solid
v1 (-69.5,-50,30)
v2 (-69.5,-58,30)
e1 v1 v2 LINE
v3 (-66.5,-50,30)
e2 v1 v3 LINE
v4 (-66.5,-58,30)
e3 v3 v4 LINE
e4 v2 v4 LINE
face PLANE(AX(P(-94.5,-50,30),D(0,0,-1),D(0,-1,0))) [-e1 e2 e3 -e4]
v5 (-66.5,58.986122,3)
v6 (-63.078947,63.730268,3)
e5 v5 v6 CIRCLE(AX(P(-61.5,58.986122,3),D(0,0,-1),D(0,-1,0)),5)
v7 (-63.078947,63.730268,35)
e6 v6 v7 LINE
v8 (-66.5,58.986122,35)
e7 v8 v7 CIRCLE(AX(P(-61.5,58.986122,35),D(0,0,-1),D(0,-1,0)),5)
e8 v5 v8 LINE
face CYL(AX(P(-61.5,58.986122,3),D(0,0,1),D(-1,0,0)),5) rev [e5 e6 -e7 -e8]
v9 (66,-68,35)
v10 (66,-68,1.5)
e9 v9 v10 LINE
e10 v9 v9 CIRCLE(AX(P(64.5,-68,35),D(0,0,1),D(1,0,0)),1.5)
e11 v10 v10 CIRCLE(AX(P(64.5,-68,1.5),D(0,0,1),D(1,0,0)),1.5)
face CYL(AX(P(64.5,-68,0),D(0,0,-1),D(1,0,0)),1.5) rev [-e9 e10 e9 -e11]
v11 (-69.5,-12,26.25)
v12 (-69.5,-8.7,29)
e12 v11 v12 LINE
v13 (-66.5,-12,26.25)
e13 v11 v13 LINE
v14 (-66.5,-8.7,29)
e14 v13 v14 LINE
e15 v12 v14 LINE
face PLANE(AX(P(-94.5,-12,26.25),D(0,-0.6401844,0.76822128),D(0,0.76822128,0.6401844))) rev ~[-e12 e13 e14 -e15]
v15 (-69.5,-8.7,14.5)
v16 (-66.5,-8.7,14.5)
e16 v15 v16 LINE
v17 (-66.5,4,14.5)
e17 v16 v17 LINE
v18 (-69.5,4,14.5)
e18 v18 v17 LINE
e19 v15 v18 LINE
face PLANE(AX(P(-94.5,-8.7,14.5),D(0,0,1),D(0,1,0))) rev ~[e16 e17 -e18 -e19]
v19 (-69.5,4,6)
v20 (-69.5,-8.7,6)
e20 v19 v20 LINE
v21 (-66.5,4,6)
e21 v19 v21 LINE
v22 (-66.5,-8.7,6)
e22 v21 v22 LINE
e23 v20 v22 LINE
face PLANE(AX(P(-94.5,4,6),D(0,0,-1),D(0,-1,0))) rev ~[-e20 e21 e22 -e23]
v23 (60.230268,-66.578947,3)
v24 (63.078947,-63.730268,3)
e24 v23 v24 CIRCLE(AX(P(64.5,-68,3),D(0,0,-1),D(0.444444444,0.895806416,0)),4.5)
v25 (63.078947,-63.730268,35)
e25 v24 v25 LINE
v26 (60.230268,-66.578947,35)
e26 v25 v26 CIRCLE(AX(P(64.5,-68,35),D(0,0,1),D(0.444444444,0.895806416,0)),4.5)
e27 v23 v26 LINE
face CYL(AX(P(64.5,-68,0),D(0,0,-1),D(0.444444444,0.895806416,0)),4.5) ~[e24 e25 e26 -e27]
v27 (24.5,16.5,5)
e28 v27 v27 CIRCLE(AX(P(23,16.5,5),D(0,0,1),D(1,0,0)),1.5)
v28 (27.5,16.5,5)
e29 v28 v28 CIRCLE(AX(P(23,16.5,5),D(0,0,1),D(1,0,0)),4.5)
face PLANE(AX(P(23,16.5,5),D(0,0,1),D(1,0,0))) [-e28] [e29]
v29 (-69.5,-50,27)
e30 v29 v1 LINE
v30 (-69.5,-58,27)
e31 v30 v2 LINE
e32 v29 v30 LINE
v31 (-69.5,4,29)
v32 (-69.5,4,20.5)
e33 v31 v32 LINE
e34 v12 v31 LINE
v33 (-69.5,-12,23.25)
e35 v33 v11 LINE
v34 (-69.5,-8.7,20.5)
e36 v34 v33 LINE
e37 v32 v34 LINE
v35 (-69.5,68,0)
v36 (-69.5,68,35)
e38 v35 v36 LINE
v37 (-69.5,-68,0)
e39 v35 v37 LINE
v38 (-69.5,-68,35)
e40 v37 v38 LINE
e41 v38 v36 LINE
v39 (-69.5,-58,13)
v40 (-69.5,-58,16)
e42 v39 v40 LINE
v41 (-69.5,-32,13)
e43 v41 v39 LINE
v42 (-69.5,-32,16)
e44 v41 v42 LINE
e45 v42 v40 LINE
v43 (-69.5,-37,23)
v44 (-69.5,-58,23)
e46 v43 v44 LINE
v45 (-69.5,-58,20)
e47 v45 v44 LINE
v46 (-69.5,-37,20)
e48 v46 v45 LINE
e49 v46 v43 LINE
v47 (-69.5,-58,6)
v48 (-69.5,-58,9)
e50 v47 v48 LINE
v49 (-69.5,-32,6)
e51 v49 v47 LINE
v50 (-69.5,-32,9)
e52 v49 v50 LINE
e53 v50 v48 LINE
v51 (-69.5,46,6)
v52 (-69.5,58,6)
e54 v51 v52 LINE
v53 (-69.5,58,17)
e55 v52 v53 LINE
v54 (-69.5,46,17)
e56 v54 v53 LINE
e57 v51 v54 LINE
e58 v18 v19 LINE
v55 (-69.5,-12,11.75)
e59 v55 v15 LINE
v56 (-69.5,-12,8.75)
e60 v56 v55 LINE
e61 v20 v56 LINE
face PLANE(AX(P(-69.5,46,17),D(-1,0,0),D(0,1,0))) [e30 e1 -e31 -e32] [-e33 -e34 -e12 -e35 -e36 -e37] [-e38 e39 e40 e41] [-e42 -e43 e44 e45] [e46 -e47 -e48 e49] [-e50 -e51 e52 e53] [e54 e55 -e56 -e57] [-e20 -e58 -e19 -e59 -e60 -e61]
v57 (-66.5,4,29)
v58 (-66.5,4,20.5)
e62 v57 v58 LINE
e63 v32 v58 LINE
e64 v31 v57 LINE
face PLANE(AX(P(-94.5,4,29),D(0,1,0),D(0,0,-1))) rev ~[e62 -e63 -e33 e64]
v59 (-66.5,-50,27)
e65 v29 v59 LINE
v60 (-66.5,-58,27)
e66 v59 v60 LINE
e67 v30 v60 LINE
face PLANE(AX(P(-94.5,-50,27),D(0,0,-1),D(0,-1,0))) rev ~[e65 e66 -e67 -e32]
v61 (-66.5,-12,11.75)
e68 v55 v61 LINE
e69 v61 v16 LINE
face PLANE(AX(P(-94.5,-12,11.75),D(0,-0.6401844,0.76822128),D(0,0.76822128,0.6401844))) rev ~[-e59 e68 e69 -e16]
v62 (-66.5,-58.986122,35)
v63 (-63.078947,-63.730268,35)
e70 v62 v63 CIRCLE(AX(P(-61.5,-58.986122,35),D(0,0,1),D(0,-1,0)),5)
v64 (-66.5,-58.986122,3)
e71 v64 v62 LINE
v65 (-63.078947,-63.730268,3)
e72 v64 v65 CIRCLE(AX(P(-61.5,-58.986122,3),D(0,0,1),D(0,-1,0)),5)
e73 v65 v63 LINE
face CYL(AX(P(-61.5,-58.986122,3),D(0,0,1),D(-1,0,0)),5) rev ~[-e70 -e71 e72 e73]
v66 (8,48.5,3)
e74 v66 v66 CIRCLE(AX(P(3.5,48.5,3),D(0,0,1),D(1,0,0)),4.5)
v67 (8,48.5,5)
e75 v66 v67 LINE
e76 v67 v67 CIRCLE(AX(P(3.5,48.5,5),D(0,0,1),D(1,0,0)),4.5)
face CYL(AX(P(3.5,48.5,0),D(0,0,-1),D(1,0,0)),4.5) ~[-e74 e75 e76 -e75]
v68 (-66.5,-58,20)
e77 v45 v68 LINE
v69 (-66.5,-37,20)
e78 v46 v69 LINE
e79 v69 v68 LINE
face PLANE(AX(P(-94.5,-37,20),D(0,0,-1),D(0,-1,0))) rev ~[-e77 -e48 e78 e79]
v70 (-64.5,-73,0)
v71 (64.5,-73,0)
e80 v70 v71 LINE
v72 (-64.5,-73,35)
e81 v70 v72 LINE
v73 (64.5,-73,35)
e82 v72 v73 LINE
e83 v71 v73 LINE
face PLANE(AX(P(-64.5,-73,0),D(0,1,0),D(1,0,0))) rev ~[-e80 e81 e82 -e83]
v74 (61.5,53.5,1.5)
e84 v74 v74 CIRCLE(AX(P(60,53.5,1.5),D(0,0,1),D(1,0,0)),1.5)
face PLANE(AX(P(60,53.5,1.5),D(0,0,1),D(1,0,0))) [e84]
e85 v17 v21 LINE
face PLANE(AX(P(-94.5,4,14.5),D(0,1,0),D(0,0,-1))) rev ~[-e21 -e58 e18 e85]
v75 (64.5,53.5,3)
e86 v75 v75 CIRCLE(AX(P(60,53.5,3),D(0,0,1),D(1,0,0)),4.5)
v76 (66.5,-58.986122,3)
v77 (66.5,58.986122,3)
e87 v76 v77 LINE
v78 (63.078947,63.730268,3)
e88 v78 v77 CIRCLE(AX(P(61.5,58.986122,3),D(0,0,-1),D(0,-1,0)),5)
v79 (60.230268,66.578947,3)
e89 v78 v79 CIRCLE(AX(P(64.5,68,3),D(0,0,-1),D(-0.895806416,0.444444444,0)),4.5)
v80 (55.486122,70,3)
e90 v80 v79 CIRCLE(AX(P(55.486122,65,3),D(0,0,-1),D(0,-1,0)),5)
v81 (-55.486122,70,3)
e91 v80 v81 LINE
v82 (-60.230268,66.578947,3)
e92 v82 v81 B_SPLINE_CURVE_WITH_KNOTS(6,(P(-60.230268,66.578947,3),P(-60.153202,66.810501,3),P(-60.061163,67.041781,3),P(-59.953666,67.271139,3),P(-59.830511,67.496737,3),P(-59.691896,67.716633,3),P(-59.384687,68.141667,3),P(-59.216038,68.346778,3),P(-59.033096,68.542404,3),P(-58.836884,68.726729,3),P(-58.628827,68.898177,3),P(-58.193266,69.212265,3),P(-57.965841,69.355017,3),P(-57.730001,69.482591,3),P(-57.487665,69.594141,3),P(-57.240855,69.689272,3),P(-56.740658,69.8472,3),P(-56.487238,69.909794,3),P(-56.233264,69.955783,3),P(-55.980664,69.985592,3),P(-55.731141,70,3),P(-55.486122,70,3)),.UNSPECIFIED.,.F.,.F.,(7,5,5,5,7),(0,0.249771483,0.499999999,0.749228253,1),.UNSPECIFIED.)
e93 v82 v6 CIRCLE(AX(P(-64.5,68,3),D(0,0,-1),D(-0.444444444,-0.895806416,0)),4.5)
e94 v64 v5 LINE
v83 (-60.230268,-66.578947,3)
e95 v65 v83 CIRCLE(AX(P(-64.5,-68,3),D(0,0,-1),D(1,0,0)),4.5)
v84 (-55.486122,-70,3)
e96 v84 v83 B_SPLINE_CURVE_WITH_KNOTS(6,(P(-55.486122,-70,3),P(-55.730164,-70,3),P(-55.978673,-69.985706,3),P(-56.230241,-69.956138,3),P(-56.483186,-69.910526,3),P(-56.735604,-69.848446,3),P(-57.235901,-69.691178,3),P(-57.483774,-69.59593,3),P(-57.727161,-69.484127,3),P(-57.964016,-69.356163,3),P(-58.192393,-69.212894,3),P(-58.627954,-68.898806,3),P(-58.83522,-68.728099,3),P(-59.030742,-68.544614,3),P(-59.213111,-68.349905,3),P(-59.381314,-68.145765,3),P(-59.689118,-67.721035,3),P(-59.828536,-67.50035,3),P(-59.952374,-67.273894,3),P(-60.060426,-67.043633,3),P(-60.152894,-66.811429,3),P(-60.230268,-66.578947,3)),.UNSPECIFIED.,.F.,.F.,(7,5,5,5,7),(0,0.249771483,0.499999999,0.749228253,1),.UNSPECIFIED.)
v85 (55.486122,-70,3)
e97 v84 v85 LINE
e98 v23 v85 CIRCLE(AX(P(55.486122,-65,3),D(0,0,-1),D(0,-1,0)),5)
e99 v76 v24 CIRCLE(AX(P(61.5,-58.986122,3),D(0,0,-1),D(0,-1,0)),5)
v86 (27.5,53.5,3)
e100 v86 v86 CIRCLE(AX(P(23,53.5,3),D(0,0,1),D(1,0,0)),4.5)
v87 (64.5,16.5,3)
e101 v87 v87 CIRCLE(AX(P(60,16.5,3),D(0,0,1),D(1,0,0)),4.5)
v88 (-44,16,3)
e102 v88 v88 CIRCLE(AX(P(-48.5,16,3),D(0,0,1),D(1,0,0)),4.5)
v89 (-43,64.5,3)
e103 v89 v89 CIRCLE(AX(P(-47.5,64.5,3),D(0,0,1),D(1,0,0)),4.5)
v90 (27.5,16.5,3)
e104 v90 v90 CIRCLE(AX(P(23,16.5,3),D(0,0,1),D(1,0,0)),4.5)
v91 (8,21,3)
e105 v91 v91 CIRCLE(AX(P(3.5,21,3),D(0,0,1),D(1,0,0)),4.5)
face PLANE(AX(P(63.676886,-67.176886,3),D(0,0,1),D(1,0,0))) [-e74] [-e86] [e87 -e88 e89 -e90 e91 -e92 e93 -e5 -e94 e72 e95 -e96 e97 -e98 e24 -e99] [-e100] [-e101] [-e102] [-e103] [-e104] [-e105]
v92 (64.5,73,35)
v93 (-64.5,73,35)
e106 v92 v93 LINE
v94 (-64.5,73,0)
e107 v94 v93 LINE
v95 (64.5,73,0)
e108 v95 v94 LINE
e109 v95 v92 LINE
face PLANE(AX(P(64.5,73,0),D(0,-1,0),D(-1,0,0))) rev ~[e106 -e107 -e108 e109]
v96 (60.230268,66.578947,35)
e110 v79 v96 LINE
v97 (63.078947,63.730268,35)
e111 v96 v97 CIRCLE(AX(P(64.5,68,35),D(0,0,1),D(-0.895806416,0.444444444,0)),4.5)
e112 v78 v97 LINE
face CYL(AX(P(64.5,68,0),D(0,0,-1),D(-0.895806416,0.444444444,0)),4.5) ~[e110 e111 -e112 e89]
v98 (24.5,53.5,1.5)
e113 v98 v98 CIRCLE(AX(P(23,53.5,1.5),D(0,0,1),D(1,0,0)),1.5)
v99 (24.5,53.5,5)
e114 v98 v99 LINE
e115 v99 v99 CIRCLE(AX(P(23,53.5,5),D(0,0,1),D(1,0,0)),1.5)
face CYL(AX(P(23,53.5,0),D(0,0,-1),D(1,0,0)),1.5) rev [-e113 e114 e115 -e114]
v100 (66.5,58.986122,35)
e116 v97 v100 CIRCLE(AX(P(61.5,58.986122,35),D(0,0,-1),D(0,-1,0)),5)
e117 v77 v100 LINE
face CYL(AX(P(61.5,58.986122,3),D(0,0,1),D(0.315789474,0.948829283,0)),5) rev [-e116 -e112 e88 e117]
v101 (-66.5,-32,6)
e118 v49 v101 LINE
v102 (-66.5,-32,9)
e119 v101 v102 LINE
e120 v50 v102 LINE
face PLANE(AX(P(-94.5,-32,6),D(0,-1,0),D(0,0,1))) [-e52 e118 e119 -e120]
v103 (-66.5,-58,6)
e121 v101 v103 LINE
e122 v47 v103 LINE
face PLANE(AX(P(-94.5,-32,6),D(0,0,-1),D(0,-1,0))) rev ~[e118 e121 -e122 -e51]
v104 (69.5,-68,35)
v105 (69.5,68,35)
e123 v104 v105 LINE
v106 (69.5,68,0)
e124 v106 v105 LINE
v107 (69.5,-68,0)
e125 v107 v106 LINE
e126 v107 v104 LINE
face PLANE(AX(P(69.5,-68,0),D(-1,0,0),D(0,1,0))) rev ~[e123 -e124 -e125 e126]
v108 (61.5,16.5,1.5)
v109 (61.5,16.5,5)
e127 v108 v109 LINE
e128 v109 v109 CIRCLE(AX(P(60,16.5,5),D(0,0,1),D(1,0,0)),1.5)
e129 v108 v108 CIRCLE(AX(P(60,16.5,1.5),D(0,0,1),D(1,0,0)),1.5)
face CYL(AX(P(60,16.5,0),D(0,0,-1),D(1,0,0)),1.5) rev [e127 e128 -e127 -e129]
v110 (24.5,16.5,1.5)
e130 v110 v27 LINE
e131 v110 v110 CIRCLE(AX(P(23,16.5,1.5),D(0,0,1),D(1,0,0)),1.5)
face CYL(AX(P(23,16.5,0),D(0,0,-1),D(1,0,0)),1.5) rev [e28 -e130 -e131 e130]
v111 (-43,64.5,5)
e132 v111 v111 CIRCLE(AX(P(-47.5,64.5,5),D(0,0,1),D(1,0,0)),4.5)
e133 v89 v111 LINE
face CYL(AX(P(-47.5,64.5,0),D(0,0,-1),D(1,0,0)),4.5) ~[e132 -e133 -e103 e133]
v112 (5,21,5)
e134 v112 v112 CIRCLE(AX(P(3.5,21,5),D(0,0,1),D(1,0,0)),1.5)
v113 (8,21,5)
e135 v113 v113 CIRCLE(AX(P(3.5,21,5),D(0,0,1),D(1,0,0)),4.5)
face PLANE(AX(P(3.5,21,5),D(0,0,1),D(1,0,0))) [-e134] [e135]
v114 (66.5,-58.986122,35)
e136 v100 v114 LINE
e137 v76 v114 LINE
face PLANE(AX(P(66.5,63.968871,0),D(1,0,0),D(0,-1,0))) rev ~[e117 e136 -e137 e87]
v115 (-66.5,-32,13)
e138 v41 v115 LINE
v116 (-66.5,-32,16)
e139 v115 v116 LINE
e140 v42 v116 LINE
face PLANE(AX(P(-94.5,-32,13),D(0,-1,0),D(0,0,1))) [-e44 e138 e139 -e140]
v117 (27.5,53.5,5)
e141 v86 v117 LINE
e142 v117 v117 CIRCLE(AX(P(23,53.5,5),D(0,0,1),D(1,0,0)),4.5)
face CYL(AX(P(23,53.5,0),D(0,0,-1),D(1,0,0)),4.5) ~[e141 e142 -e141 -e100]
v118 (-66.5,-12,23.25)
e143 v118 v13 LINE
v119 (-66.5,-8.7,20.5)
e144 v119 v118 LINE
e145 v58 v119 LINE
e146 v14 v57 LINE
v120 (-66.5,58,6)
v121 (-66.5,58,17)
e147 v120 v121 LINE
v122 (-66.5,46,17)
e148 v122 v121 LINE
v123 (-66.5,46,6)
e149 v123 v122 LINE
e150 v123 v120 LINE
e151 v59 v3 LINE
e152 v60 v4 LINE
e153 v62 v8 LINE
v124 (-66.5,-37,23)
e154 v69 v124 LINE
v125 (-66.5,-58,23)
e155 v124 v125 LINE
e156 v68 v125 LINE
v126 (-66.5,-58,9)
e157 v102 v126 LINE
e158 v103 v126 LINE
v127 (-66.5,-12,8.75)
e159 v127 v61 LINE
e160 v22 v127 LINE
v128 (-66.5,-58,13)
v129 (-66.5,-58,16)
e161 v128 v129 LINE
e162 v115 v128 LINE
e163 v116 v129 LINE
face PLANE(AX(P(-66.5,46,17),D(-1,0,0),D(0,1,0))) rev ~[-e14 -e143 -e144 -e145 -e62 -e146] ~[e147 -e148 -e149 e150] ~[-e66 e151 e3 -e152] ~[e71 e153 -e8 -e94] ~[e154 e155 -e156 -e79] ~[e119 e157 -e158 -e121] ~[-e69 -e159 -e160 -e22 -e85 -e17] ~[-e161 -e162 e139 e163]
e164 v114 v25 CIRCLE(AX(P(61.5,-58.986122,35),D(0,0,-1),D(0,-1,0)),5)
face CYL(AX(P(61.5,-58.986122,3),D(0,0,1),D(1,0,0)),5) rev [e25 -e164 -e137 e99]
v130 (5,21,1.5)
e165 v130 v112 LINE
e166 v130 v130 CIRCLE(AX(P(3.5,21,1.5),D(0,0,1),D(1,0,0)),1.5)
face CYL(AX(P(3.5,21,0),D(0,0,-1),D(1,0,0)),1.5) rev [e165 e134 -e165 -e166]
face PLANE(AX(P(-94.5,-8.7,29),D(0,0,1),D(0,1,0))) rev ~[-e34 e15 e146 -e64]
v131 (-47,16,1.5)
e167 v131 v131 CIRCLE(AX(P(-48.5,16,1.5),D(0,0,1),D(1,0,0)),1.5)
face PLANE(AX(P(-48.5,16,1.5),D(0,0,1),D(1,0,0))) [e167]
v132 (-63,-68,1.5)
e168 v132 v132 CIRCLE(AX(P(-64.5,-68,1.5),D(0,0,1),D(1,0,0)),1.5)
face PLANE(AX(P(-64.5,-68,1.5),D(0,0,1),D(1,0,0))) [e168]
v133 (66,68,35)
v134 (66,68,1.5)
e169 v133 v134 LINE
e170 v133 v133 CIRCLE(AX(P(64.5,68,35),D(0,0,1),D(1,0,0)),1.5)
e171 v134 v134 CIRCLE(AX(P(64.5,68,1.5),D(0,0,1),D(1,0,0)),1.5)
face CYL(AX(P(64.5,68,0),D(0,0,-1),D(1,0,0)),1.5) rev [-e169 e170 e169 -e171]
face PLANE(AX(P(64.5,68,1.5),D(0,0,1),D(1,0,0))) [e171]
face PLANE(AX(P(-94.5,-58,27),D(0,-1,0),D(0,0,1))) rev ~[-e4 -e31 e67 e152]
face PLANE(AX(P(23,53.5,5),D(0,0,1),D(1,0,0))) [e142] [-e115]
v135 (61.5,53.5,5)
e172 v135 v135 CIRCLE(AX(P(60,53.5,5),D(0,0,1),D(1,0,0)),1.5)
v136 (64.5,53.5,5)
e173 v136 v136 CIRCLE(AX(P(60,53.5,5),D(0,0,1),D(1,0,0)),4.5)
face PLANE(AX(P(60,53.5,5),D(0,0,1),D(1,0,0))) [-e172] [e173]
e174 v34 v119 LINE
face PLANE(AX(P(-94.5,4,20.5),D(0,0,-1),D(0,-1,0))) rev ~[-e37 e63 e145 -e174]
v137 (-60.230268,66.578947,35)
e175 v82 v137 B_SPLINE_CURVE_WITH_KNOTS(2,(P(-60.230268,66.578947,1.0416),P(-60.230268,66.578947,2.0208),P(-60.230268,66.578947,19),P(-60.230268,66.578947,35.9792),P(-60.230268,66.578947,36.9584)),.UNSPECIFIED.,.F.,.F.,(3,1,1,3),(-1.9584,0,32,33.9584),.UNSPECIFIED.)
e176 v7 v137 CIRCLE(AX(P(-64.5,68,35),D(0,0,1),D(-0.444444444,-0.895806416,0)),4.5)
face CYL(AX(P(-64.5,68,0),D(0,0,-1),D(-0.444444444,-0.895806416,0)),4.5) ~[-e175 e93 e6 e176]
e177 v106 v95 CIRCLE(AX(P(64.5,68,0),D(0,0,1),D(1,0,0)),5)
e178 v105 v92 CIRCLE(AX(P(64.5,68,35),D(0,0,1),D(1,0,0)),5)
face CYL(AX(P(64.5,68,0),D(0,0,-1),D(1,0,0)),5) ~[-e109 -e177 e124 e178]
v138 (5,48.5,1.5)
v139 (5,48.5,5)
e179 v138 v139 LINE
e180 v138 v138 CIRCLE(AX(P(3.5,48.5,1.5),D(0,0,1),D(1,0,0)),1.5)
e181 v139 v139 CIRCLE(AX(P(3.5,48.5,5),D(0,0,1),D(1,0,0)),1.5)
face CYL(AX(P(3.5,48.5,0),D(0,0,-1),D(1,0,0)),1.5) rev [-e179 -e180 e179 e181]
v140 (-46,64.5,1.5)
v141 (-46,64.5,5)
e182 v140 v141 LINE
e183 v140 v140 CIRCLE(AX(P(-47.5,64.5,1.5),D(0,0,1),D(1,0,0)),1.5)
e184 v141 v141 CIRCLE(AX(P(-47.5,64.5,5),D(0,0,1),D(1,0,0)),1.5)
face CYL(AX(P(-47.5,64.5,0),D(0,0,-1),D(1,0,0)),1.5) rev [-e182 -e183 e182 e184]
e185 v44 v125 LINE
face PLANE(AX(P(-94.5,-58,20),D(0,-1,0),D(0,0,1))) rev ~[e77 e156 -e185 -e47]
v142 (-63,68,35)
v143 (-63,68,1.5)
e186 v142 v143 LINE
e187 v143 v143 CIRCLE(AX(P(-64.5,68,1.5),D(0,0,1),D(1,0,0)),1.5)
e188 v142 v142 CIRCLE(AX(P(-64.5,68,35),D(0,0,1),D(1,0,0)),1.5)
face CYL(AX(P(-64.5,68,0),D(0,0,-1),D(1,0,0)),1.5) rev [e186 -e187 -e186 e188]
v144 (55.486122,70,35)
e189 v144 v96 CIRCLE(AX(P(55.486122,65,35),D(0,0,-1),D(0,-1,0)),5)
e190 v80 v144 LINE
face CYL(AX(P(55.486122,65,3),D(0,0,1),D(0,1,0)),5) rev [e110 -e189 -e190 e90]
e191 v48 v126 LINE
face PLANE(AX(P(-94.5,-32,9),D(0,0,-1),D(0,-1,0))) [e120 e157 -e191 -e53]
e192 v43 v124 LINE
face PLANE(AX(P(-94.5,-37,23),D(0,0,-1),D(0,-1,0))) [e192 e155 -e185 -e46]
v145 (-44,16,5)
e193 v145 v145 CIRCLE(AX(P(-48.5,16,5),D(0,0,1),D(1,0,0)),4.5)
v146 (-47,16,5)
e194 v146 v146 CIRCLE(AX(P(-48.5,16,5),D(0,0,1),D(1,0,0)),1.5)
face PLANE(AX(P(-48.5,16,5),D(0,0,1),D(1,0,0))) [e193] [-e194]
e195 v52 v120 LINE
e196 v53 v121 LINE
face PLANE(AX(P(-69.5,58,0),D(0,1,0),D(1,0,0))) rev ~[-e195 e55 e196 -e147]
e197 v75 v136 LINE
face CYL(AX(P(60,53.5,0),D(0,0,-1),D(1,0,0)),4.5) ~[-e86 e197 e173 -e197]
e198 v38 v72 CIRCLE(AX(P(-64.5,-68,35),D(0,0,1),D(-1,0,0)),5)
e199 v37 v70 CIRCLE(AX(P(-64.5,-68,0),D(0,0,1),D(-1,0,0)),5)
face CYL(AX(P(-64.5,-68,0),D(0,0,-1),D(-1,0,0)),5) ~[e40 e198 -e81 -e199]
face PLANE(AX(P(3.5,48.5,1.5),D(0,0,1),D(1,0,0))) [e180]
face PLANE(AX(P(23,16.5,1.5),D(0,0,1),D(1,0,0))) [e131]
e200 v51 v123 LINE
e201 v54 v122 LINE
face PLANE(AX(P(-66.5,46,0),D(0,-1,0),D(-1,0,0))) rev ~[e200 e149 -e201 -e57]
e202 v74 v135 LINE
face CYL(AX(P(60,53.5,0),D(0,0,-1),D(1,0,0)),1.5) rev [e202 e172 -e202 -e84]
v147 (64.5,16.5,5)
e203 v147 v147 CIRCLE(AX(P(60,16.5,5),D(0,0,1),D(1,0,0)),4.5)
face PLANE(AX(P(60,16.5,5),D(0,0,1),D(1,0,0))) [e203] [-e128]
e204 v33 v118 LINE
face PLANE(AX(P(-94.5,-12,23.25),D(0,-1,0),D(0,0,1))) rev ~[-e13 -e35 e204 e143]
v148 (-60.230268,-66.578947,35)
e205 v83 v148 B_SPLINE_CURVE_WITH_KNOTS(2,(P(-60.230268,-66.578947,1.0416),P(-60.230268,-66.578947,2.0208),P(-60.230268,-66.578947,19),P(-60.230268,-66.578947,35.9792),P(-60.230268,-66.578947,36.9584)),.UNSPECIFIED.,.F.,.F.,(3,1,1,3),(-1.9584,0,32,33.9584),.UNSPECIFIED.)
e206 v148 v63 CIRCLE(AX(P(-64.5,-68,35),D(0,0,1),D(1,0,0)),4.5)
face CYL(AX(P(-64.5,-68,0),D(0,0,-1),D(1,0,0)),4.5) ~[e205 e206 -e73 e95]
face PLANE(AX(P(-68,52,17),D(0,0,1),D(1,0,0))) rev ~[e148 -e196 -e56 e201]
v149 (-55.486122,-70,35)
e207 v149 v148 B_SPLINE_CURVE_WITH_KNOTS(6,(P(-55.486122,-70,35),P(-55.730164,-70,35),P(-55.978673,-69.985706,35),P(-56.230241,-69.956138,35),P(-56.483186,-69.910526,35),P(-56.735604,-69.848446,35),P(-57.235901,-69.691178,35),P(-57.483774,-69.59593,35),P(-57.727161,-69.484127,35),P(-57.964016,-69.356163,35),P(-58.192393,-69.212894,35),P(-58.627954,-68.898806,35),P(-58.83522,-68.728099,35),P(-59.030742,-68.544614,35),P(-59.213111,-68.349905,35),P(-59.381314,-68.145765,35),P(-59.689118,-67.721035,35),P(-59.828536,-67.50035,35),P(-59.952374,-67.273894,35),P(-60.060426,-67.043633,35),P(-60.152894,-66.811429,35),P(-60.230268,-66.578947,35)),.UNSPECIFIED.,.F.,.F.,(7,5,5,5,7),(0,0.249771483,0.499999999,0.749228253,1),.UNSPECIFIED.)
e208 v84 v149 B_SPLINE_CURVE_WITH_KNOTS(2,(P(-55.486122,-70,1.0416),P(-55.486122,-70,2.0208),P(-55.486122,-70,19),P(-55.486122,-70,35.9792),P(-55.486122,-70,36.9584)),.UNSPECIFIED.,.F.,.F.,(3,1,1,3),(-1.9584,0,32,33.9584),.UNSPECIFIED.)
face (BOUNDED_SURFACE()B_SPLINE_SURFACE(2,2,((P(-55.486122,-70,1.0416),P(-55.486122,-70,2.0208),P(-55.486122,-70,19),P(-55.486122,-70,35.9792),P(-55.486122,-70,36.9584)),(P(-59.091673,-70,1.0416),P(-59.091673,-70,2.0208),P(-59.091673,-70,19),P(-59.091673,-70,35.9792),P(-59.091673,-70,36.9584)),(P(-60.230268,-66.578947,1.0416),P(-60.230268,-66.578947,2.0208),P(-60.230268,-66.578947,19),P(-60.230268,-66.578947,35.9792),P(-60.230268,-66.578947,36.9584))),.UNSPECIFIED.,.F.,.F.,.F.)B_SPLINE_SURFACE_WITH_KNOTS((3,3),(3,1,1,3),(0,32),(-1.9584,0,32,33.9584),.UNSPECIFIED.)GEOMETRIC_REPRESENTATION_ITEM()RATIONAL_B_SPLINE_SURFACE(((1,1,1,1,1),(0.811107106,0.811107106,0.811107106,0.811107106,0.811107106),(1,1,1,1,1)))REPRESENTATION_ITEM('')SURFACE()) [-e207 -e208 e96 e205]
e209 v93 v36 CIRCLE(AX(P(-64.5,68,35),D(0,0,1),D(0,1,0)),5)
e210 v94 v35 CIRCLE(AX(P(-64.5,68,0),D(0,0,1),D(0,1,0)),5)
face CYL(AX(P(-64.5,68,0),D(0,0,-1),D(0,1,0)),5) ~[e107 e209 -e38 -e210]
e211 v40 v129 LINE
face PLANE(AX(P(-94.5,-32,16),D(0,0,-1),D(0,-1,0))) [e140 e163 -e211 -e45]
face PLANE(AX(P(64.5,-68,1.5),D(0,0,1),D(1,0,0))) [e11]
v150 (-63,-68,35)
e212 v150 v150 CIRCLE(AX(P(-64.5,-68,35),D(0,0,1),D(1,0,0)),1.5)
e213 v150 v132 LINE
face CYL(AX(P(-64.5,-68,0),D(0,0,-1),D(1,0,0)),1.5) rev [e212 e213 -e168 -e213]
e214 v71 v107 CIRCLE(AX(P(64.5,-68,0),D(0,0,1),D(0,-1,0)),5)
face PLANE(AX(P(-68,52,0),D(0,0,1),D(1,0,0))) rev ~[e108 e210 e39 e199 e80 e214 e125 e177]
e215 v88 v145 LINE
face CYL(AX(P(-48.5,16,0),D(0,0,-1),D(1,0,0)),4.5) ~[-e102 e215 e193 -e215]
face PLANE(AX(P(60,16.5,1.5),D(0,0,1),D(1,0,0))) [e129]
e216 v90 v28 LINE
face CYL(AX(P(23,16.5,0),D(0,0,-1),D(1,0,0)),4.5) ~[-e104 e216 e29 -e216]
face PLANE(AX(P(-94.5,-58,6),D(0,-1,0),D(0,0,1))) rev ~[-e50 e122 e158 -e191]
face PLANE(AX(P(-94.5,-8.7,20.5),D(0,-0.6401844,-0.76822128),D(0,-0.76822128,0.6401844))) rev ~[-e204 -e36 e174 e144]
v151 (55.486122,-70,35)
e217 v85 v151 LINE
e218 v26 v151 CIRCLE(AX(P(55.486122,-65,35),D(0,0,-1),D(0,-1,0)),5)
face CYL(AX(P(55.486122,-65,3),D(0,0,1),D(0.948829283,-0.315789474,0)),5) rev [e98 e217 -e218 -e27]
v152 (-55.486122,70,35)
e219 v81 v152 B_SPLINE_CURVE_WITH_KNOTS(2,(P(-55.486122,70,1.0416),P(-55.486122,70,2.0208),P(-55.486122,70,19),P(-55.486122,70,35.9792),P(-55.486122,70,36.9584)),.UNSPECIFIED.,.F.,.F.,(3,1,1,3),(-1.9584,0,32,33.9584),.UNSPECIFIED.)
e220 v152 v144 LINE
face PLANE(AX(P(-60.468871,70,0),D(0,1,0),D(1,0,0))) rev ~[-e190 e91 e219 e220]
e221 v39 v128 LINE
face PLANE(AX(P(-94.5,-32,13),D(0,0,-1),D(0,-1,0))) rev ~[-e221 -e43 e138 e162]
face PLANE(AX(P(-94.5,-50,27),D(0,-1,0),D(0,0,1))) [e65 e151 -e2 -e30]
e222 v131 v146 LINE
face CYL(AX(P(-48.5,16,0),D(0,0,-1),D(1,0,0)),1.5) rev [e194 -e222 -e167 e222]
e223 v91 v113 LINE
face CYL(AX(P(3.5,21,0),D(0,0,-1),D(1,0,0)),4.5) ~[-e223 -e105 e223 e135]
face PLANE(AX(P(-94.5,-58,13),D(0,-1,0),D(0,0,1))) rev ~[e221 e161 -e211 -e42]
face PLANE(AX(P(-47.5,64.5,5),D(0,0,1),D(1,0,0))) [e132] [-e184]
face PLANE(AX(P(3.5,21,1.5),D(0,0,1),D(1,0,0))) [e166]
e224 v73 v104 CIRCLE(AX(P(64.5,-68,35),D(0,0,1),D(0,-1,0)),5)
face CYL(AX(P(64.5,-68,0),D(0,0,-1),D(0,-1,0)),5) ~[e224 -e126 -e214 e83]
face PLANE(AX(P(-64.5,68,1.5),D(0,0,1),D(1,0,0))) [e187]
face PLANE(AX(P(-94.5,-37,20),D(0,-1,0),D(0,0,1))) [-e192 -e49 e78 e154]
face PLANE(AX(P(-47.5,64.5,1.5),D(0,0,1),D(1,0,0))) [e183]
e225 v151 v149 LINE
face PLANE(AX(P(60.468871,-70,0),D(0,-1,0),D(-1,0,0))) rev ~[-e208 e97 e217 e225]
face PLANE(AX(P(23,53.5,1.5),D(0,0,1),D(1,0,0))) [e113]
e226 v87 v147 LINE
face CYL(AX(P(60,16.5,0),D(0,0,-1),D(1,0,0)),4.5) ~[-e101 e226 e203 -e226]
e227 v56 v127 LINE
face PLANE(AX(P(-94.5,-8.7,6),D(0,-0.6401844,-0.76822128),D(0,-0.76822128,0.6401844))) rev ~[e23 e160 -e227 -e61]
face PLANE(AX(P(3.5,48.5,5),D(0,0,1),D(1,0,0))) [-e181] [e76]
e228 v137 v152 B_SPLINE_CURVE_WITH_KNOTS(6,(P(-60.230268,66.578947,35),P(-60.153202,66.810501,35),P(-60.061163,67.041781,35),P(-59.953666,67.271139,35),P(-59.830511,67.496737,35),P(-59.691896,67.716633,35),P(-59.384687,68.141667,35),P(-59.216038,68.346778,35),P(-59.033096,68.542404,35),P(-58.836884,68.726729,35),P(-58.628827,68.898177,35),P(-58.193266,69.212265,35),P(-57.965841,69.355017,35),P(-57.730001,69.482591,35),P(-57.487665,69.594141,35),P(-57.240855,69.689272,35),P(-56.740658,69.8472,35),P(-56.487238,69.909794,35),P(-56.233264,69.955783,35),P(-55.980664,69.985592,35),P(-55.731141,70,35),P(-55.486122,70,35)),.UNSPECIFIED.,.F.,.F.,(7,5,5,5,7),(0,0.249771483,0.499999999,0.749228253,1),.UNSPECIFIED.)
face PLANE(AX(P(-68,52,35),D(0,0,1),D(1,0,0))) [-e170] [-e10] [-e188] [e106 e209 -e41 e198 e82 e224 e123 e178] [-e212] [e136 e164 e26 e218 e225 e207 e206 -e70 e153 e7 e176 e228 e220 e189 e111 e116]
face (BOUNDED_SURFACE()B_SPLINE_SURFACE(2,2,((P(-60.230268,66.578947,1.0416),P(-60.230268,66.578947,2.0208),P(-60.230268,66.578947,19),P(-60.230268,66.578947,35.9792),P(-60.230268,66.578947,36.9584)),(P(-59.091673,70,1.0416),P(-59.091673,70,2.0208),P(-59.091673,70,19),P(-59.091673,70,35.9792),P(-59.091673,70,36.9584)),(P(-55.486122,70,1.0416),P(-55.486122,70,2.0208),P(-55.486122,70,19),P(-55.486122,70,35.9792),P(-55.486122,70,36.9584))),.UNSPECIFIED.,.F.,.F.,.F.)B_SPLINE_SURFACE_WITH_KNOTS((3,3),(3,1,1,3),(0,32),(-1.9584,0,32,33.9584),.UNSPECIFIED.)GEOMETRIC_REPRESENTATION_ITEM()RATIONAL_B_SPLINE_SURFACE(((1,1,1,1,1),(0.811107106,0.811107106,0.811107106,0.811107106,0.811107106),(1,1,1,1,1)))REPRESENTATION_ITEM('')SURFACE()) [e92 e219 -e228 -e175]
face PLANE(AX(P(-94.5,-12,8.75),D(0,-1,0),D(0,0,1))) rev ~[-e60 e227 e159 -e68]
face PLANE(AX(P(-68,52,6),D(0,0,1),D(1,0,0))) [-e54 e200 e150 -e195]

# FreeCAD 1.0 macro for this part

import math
import FreeCAD as App
import Part
import Sketcher

V = App.Vector


def edges_at(feature, points):
    """Names of the edges that pass closest to the given points."""
    edges = feature.Shape.Edges
    near = lambda p: min(range(len(edges)), key=lambda i: edges[i].distToShape(Part.Vertex(*p))[0])
    return sorted({f"Edge{near(p) + 1}" for p in points})


def add_polygon(sketch, points):
    """Adds a closed chain of lines whose ends are joined by coincident constraints."""
    first, n = sketch.GeometryCount, len(points)
    for a, b in zip(points, points[1:] + points[:1]):
        sketch.addGeometry(Part.LineSegment(App.Vector(*a, 0), App.Vector(*b, 0)), False)
    for i in range(n):
        sketch.addConstraint(Sketcher.Constraint("Coincident", first + i, 2, first + (i + 1) % n, 1))

doc = App.newDocument("Part")
body = doc.addObject("PartDesign::Body", "Body")

# Sketch on XY plane
sketch1 = body.newObject("Sketcher::SketchObject", "Sketch")
sketch1.AttachmentSupport = (doc.getObject("XY_Plane"), [""])
sketch1.MapMode = "FlatFace"
add_polygon(sketch1, [(66.5, -70), (66.5, 70), (-66.5, 70), (-66.5, -70)])  # lines 0-3
sketch1.addGeometry(Part.Circle(V(-64.5, -68, 0), V(0, 0, 1), 1.5), False)  # 4
sketch1.addGeometry(Part.Circle(V(64.5, -68, 0), V(0, 0, 1), 1.5), False)  # 5
sketch1.addGeometry(Part.Circle(V(-48.5, 16, 0), V(0, 0, 1), 4.5), False)  # 6
sketch1.addGeometry(Part.Circle(V(-64.5, 68, 0), V(0, 0, 1), 1.5), False)  # 7
sketch1.addGeometry(Part.Circle(V(-47.5, 64.5, 0), V(0, 0, 1), 4.5), False)  # 8
sketch1.addGeometry(Part.Circle(V(23, 16.5, 0), V(0, 0, 1), 4.5), False)  # 9
sketch1.addGeometry(Part.Circle(V(3.5, 21, 0), V(0, 0, 1), 4.5), False)  # 10
sketch1.addGeometry(Part.Circle(V(60, 16.5, 0), V(0, 0, 1), 4.5), False)  # 11
sketch1.addGeometry(Part.Circle(V(3.5, 48.5, 0), V(0, 0, 1), 4.5), False)  # 12
sketch1.addGeometry(Part.Circle(V(23, 53.5, 0), V(0, 0, 1), 4.5), False)  # 13
sketch1.addGeometry(Part.Circle(V(60, 53.5, 0), V(0, 0, 1), 4.5), False)  # 14
sketch1.addGeometry(Part.Circle(V(64.5, 68, 0), V(0, 0, 1), 1.5), False)  # 15
sketch1.addConstraint([
    Sketcher.Constraint("Vertical", 0),
    Sketcher.Constraint("Horizontal", 1),
    Sketcher.Constraint("Vertical", 2),
    Sketcher.Constraint("Horizontal", 3),
    Sketcher.Constraint("Equal", 4, 5),
    Sketcher.Constraint("Equal", 5, 7),
    Sketcher.Constraint("Equal", 6, 8),
    Sketcher.Constraint("Equal", 8, 9),
    Sketcher.Constraint("Equal", 9, 10),
    Sketcher.Constraint("Equal", 10, 11),
    Sketcher.Constraint("Equal", 11, 12),
    Sketcher.Constraint("Equal", 12, 13),
    Sketcher.Constraint("Equal", 13, 14),
    Sketcher.Constraint("Equal", 7, 15),
    Sketcher.Constraint("Symmetric", 5, 3, 7, 3, -1, 1),
    Sketcher.Constraint("Symmetric", 4, 3, 15, 3, -1, 1),
    Sketcher.Constraint("Symmetric", 0, 2, 2, 2, -1, 1),
    Sketcher.Constraint("Symmetric", 4, 3, 5, 3, -2),
    Sketcher.Constraint("Horizontal", 9, 3, 11, 3),
    Sketcher.Constraint("Horizontal", 13, 3, 14, 3),
    Sketcher.Constraint("Vertical", 10, 3, 12, 3),
    Sketcher.Constraint("Vertical", 9, 3, 13, 3),
    Sketcher.Constraint("Vertical", 11, 3, 14, 3),
    Sketcher.Constraint("Diameter", 4, 3.0),
    Sketcher.Constraint("Diameter", 6, 9.0),
    Sketcher.Constraint("DistanceX", 1, 2, 1, 1, 133.0),
    Sketcher.Constraint("DistanceY", 0, 1, 0, 2, 140.0),
    Sketcher.Constraint("DistanceY", 4, 3, -1, 1, 68.0),
    Sketcher.Constraint("DistanceY", -1, 1, 6, 3, 16.0),
    Sketcher.Constraint("DistanceX", -1, 1, 9, 3, 23.0),
    Sketcher.Constraint("DistanceY", -1, 1, 10, 3, 21.0),
    Sketcher.Constraint("DistanceX", -1, 1, 11, 3, 60.0),
    Sketcher.Constraint("DistanceX", 4, 3, 5, 3, 129.0),
    Sketcher.Constraint("DistanceX", 4, 3, 6, 3, 16.0),
    Sketcher.Constraint("DistanceX", 7, 3, 8, 3, 17.0),
    Sketcher.Constraint("DistanceY", 9, 3, 8, 3, 48.0),
    Sketcher.Constraint("DistanceX", 6, 3, 10, 3, 52.0),
    Sketcher.Constraint("DistanceY", 9, 3, 12, 3, 32.0),
    Sketcher.Constraint("DistanceY", 12, 3, 13, 3, 5.0),
    Sketcher.Constraint("DistanceY", -1, 1, 8, 3, 64.5),
])
pad1 = body.newObject("PartDesign::Pad", "Pad")
pad1.Profile = sketch1
pad1.Length = 3

# Sketch on XY plane
sketch2 = body.newObject("Sketcher::SketchObject", "Sketch001")
sketch2.AttachmentSupport = (doc.getObject("XY_Plane"), [""])
sketch2.MapMode = "FlatFace"
sketch2.addGeometry([
    Part.Circle(V(-47.5, 64.5, 0), V(0, 0, 1), 4.5),  # 0
    Part.Circle(V(-47.5, 64.5, 0), V(0, 0, 1), 1.5),  # 1
    Part.Circle(V(-48.5, 16, 0), V(0, 0, 1), 4.5),  # 2
    Part.Circle(V(-48.5, 16, 0), V(0, 0, 1), 1.5),  # 3
    Part.Circle(V(3.5, 48.5, 0), V(0, 0, 1), 4.5),  # 4
    Part.Circle(V(3.5, 48.5, 0), V(0, 0, 1), 1.5),  # 5
    Part.Circle(V(23, 53.5, 0), V(0, 0, 1), 4.5),  # 6
    Part.Circle(V(23, 53.5, 0), V(0, 0, 1), 1.5),  # 7
    Part.Circle(V(23, 16.5, 0), V(0, 0, 1), 4.5),  # 8
    Part.Circle(V(23, 16.5, 0), V(0, 0, 1), 1.5),  # 9
    Part.Circle(V(60, 53.5, 0), V(0, 0, 1), 4.5),  # 10
    Part.Circle(V(60, 53.5, 0), V(0, 0, 1), 1.5),  # 11
    Part.Circle(V(60, 16.5, 0), V(0, 0, 1), 4.5),  # 12
    Part.Circle(V(60, 16.5, 0), V(0, 0, 1), 1.5),  # 13
    Part.Circle(V(3.5, 21, 0), V(0, 0, 1), 4.5),  # 14
    Part.Circle(V(3.5, 21, 0), V(0, 0, 1), 1.5),  # 15
], False)
sketch2.addConstraint([
    Sketcher.Constraint("Coincident", 1, 3, 0, 3),
    Sketcher.Constraint("Coincident", 3, 3, 2, 3),
    Sketcher.Constraint("Coincident", 5, 3, 4, 3),
    Sketcher.Constraint("Coincident", 7, 3, 6, 3),
    Sketcher.Constraint("Coincident", 9, 3, 8, 3),
    Sketcher.Constraint("Coincident", 11, 3, 10, 3),
    Sketcher.Constraint("Coincident", 13, 3, 12, 3),
    Sketcher.Constraint("Coincident", 15, 3, 14, 3),
    Sketcher.Constraint("Equal", 0, 2),
    Sketcher.Constraint("Equal", 1, 3),
    Sketcher.Constraint("Equal", 2, 4),
    Sketcher.Constraint("Equal", 3, 5),
    Sketcher.Constraint("Equal", 4, 6),
    Sketcher.Constraint("Equal", 5, 7),
    Sketcher.Constraint("Equal", 6, 8),
    Sketcher.Constraint("Equal", 7, 9),
    Sketcher.Constraint("Equal", 8, 10),
    Sketcher.Constraint("Equal", 9, 11),
    Sketcher.Constraint("Equal", 10, 12),
    Sketcher.Constraint("Equal", 11, 13),
    Sketcher.Constraint("Equal", 12, 14),
    Sketcher.Constraint("Equal", 13, 15),
    Sketcher.Constraint("Horizontal", 7, 3, 10, 3),
    Sketcher.Constraint("Horizontal", 9, 3, 12, 3),
    Sketcher.Constraint("Vertical", 7, 3, 8, 3),
    Sketcher.Constraint("Vertical", 11, 3, 12, 3),
    Sketcher.Constraint("Vertical", 5, 3, 14, 3),
    Sketcher.Constraint("Diameter", 0, 9.0),
    Sketcher.Constraint("Diameter", 1, 3.0),
    Sketcher.Constraint("DistanceY", -1, 1, 2, 3, 16.0),
    Sketcher.Constraint("DistanceX", -1, 1, 6, 3, 23.0),
    Sketcher.Constraint("DistanceX", -1, 1, 10, 3, 60.0),
    Sketcher.Constraint("DistanceY", -1, 1, 14, 3, 21.0),
    Sketcher.Constraint("DistanceX", 2, 3, 0, 3, 1.0),
    Sketcher.Constraint("DistanceX", 0, 3, 4, 3, 51.0),
    Sketcher.Constraint("DistanceY", 4, 3, 0, 3, 16.0),
    Sketcher.Constraint("DistanceY", 4, 3, 6, 3, 5.0),
    Sketcher.Constraint("DistanceY", 8, 3, 6, 3, 37.0),
    Sketcher.Constraint("DistanceX", 0, 3, -1, 1, 47.5),
    Sketcher.Constraint("DistanceY", -1, 1, 0, 3, 64.5),
])
pad2 = body.newObject("PartDesign::Pad", "Pad001")
pad2.Profile = sketch2
pad2.Length = 5

# Sketch on XY plane
sketch3 = body.newObject("Sketcher::SketchObject", "Sketch002")
sketch3.AttachmentSupport = (doc.getObject("XY_Plane"), [""])
sketch3.MapMode = "FlatFace"
sketch3.addGeometry([
    Part.Circle(V(-47.5, 64.5, 0), V(0, 0, 1), 1.5),  # 0
    Part.Circle(V(-48.5, 16, 0), V(0, 0, 1), 1.5),  # 1
    Part.Circle(V(3.5, 48.5, 0), V(0, 0, 1), 1.5),  # 2
    Part.Circle(V(3.5, 21, 0), V(0, 0, 1), 1.5),  # 3
    Part.Circle(V(23, 53.5, 0), V(0, 0, 1), 1.5),  # 4
    Part.Circle(V(23, 16.5, 0), V(0, 0, 1), 1.5),  # 5
    Part.Circle(V(60, 16.5, 0), V(0, 0, 1), 1.5),  # 6
    Part.Circle(V(60, 53.5, 0), V(0, 0, 1), 1.5),  # 7
    Part.Circle(V(-64.5, -68, 0), V(0, 0, 1), 1.5),  # 8
    Part.Circle(V(64.5, -68, 0), V(0, 0, 1), 1.5),  # 9
    Part.Circle(V(64.5, 68, 0), V(0, 0, 1), 1.5),  # 10
    Part.Circle(V(-64.5, 68, 0), V(0, 0, 1), 1.5),  # 11
], False)
sketch3.addConstraint([
    Sketcher.Constraint("Equal", 0, 1),
    Sketcher.Constraint("Equal", 1, 2),
    Sketcher.Constraint("Equal", 2, 3),
    Sketcher.Constraint("Equal", 3, 4),
    Sketcher.Constraint("Equal", 4, 5),
    Sketcher.Constraint("Equal", 5, 6),
    Sketcher.Constraint("Equal", 6, 7),
    Sketcher.Constraint("Equal", 7, 8),
    Sketcher.Constraint("Equal", 8, 9),
    Sketcher.Constraint("Equal", 9, 10),
    Sketcher.Constraint("Equal", 10, 11),
    Sketcher.Constraint("Symmetric", 8, 3, 10, 3, -1, 1),
    Sketcher.Constraint("Symmetric", 9, 3, 11, 3, -1, 1),
    Sketcher.Constraint("Symmetric", 8, 3, 9, 3, -2),
    Sketcher.Constraint("Horizontal", 5, 3, 6, 3),
    Sketcher.Constraint("Horizontal", 4, 3, 7, 3),
    Sketcher.Constraint("Vertical", 2, 3, 3, 3),
    Sketcher.Constraint("Vertical", 4, 3, 5, 3),
    Sketcher.Constraint("Vertical", 6, 3, 7, 3),
    Sketcher.Constraint("Diameter", 0, 3.0),
    Sketcher.Constraint("DistanceY", -1, 1, 1, 3, 16.0),
    Sketcher.Constraint("DistanceY", -1, 1, 3, 3, 21.0),
    Sketcher.Constraint("DistanceX", -1, 1, 4, 3, 23.0),
    Sketcher.Constraint("DistanceX", -1, 1, 6, 3, 60.0),
    Sketcher.Constraint("DistanceY", 8, 3, -1, 1, 68.0),
    Sketcher.Constraint("DistanceX", 1, 3, 0, 3, 1.0),
    Sketcher.Constraint("DistanceX", 0, 3, 2, 3, 51.0),
    Sketcher.Constraint("DistanceY", 2, 3, 0, 3, 16.0),
    Sketcher.Constraint("DistanceY", 2, 3, 4, 3, 5.0),
    Sketcher.Constraint("DistanceY", 5, 3, 4, 3, 37.0),
    Sketcher.Constraint("DistanceX", 8, 3, 1, 3, 16.0),
    Sketcher.Constraint("DistanceX", 3, 3, 9, 3, 61.0),
    Sketcher.Constraint("DistanceY", -1, 1, 0, 3, 64.5),
])
pad3 = body.newObject("PartDesign::Pad", "Pad002")
pad3.Profile = sketch3
pad3.Length = 1.5

# Sketch on XY plane
sketch4 = body.newObject("Sketcher::SketchObject", "Sketch003")
sketch4.AttachmentSupport = (doc.getObject("XY_Plane"), [""])
sketch4.MapMode = "FlatFace"
sketch4.addGeometry([
    Part.LineSegment(V(60.468871, -70, 0), V(-60.468871, -70, 0)),  # 0
    Part.ArcOfCircle(Part.Circle(V(-64.5, -68, 0), V(0, 0, 1), 4.5), math.radians(-26.3878), math.radians(0)),  # 1
    Part.ArcOfCircle(Part.Circle(V(-64.5, -68, 0), V(0, 0, 1), 4.5), math.radians(0), math.radians(116.3878)),  # 2
    Part.LineSegment(V(-66.5, -63.968871, 0), V(-66.5, 46, 0)),  # 3
    Part.LineSegment(V(-66.5, 46, 0), V(-69.5, 46, 0)),  # 4
    Part.LineSegment(V(-69.5, 46, 0), V(-69.5, -68, 0)),  # 5
    Part.ArcOfCircle(Part.Circle(V(-64.5, -68, 0), V(0, 0, 1), 5), math.radians(180), math.radians(270)),  # 6
    Part.LineSegment(V(-64.5, -73, 0), V(64.5, -73, 0)),  # 7
    Part.ArcOfCircle(Part.Circle(V(64.5, -68, 0), V(0, 0, 1), 5), math.radians(-90), math.radians(0)),  # 8
    Part.LineSegment(V(69.5, -68, 0), V(69.5, 68, 0)),  # 9
    Part.ArcOfCircle(Part.Circle(V(64.5, 68, 0), V(0, 0, 1), 5), math.radians(0), math.radians(90)),  # 10
    Part.LineSegment(V(64.5, 73, 0), V(-64.5, 73, 0)),  # 11
    Part.ArcOfCircle(Part.Circle(V(-64.5, 68, 0), V(0, 0, 1), 5), math.radians(90), math.radians(180)),  # 12
    Part.LineSegment(V(-69.5, 68, 0), V(-69.5, 58, 0)),  # 13
    Part.LineSegment(V(-69.5, 58, 0), V(-66.5, 58, 0)),  # 14
    Part.LineSegment(V(-66.5, 58, 0), V(-66.5, 63.968871, 0)),  # 15
    Part.ArcOfCircle(Part.Circle(V(-64.5, 68, 0), V(0, 0, 1), 4.5), math.radians(-116.3878), math.radians(0)),  # 16
    Part.ArcOfCircle(Part.Circle(V(-64.5, 68, 0), V(0, 0, 1), 4.5), math.radians(0), math.radians(26.3878)),  # 17
    Part.LineSegment(V(-60.468871, 70, 0), V(60.468871, 70, 0)),  # 18
    Part.ArcOfCircle(Part.Circle(V(64.5, 68, 0), V(0, 0, 1), 4.5), math.radians(153.6122), math.radians(296.3878)),  # 19
    Part.LineSegment(V(66.5, 63.968871, 0), V(66.5, -63.968871, 0)),  # 20
    Part.ArcOfCircle(Part.Circle(V(64.5, -68, 0), V(0, 0, 1), 4.5), math.radians(63.6122), math.radians(206.3878)),  # 21
    Part.Circle(V(-64.5, -68, 0), V(0, 0, 1), 1.5),  # 22
    Part.Circle(V(64.5, -68, 0), V(0, 0, 1), 1.5),  # 23
    Part.Circle(V(-64.5, 68, 0), V(0, 0, 1), 1.5),  # 24
    Part.Circle(V(64.5, 68, 0), V(0, 0, 1), 1.5),  # 25
], False)
sketch4.addConstraint([
    Sketcher.Constraint("Coincident", 0, 2, 1, 1),
    Sketcher.Constraint("Tangent", 1, 2, 2, 1),
    Sketcher.Constraint("Coincident", 2, 2, 3, 1),
    Sketcher.Constraint("Coincident", 3, 2, 4, 1),
    Sketcher.Constraint("Coincident", 4, 2, 5, 1),
    Sketcher.Constraint("Tangent", 5, 2, 6, 1),
    Sketcher.Constraint("Tangent", 6, 2, 7, 1),
    Sketcher.Constraint("Tangent", 7, 2, 8, 1),
    Sketcher.Constraint("Tangent", 8, 2, 9, 1),
    Sketcher.Constraint("Tangent", 9, 2, 10, 1),
    Sketcher.Constraint("Tangent", 10, 2, 11, 1),
    Sketcher.Constraint("Tangent", 11, 2, 12, 1),
    Sketcher.Constraint("Tangent", 12, 2, 13, 1),
    Sketcher.Constraint("Coincident", 13, 2, 14, 1),
    Sketcher.Constraint("Coincident", 14, 2, 15, 1),
    Sketcher.Constraint("Coincident", 15, 2, 16, 1),
    Sketcher.Constraint("Tangent", 16, 2, 17, 1),
    Sketcher.Constraint("Coincident", 17, 2, 18, 1),
    Sketcher.Constraint("Coincident", 18, 2, 19, 1),
    Sketcher.Constraint("Coincident", 19, 2, 20, 1),
    Sketcher.Constraint("Coincident", 20, 2, 21, 1),
    Sketcher.Constraint("Coincident", 21, 2, 0, 1),
    Sketcher.Constraint("Horizontal", 0),
    Sketcher.Constraint("Vertical", 3),
    Sketcher.Constraint("Horizontal", 4),
    Sketcher.Constraint("Vertical", 5),
    Sketcher.Constraint("Horizontal", 7),
    Sketcher.Constraint("Vertical", 9),
    Sketcher.Constraint("Horizontal", 11),
    Sketcher.Constraint("Vertical", 13),
    Sketcher.Constraint("Horizontal", 14),
    Sketcher.Constraint("Vertical", 15),
    Sketcher.Constraint("Horizontal", 18),
    Sketcher.Constraint("Vertical", 20),
    Sketcher.Constraint("Coincident", 6, 3, 1, 3),
    Sketcher.Constraint("Coincident", 16, 3, 12, 3),
    Sketcher.Constraint("Coincident", 19, 3, 10, 3),
    Sketcher.Constraint("Coincident", 21, 3, 8, 3),
    Sketcher.Constraint("Coincident", 22, 3, 1, 3),
    Sketcher.Constraint("Coincident", 23, 3, 8, 3),
    Sketcher.Constraint("Coincident", 24, 3, 12, 3),
    Sketcher.Constraint("Coincident", 25, 3, 10, 3),
    Sketcher.Constraint("Equal", 1, 2),
    Sketcher.Constraint("Equal", 6, 8),
    Sketcher.Constraint("Equal", 8, 10),
    Sketcher.Constraint("Equal", 10, 12),
    Sketcher.Constraint("Equal", 2, 16),
    Sketcher.Constraint("Equal", 16, 17),
    Sketcher.Constraint("Equal", 17, 19),
    Sketcher.Constraint("Equal", 19, 21),
    Sketcher.Constraint("Equal", 22, 23),
    Sketcher.Constraint("Equal", 23, 24),
    Sketcher.Constraint("Equal", 24, 25),
    Sketcher.Constraint("Symmetric", 1, 3, 10, 3, -1, 1),
    Sketcher.Constraint("Symmetric", 15, 2, 20, 2, -1, 1),
    Sketcher.Constraint("Horizontal", 23, 3, 1, 2),
    Sketcher.Constraint("Horizontal", 12, 2, 16, 2),
    Sketcher.Constraint("Horizontal", 2, 2, 20, 2),
    Sketcher.Constraint("Vertical", 0, 2, 17, 2),
    Sketcher.Constraint("Diameter", 22, 3.0),
    Sketcher.Constraint("Radius", 6, 5.0),
    Sketcher.Constraint("Radius", 1, 4.5),
    Sketcher.Constraint("DistanceX", 4, 2, 4, 1, 3.0),
    Sketcher.Constraint("DistanceX", 7, 1, 7, 2, 129.0),
    Sketcher.Constraint("DistanceY", 5, 2, 5, 1, 114.0),
    Sketcher.Constraint("DistanceY", 9, 1, 9, 2, 136.0),
    Sketcher.Constraint("DistanceY", 13, 2, 13, 1, 10.0),
    Sketcher.Constraint("DistanceY", 0, 2, -1, 1, 70.0),
])
pad4 = body.newObject("PartDesign::Pad", "Pad003")
pad4.Profile = sketch4
pad4.Length = 35

# Sketch on XY plane
sketch5 = body.newObject("Sketcher::SketchObject", "Sketch004")
sketch5.AttachmentSupport = (doc.getObject("XY_Plane"), [""])
sketch5.MapMode = "FlatFace"
add_polygon(sketch5, [(-69.5, 58), (-69.5, 46), (-66.5, 46), (-66.5, 58)])  # lines 0-3
sketch5.addConstraint([
    Sketcher.Constraint("Vertical", 0),
    Sketcher.Constraint("Horizontal", 1),
    Sketcher.Constraint("Vertical", 2),
    Sketcher.Constraint("Horizontal", 3),
    Sketcher.Constraint("DistanceX", 1, 1, 1, 2, 3.0),
    Sketcher.Constraint("DistanceY", 0, 2, 0, 1, 12.0),
    Sketcher.Constraint("DistanceY", -1, 1, 0, 2, 46.0),
    Sketcher.Constraint("DistanceX", 0, 2, -1, 1, 69.5),
])
pad5 = body.newObject("PartDesign::Pad", "Pad004")
pad5.Profile = sketch5
pad5.Length = 6
doc.recompute()

fillet = body.newObject("PartDesign::Fillet", "Fillet")
fillet.Base = (pad5, edges_at(pad5, [
    (60.469, 70, 19),
    (66.5, 63.969, 19),
    (-60.469, 70, 19),
    (-66.5, 63.969, 19),
    (-66.5, -63.969, 19),
    (-60.469, -70, 19),
    (66.5, -63.969, 19),
    (60.469, -70, 19),
]))
fillet.Radius = 5

# Sketch on XY plane
sketch6 = body.newObject("Sketcher::SketchObject", "Sketch005")
sketch6.AttachmentSupport = (doc.getObject("XY_Plane"), [""])
sketch6.MapMode = "FlatFace"
sketch6.AttachmentOffset = App.Placement(V(0, 0, 17), App.Rotation())
add_polygon(sketch6, [(-69.5, 58), (-69.5, 46), (-66.5, 46), (-66.5, 58)])  # lines 0-3
sketch6.addConstraint([
    Sketcher.Constraint("Vertical", 0),
    Sketcher.Constraint("Horizontal", 1),
    Sketcher.Constraint("Vertical", 2),
    Sketcher.Constraint("Horizontal", 3),
    Sketcher.Constraint("DistanceX", 1, 1, 1, 2, 3.0),
    Sketcher.Constraint("DistanceY", 0, 2, 0, 1, 12.0),
    Sketcher.Constraint("DistanceY", -1, 1, 0, 2, 46.0),
    Sketcher.Constraint("DistanceX", 0, 2, -1, 1, 69.5),
])
pad6 = body.newObject("PartDesign::Pad", "Pad005")
pad6.Profile = sketch6
pad6.Length = 18

# Sketch on YZ plane
sketch7 = body.newObject("Sketcher::SketchObject", "Sketch006")
sketch7.AttachmentSupport = (doc.getObject("YZ_Plane"), [""])
sketch7.MapMode = "FlatFace"
sketch7.AttachmentOffset = App.Placement(V(0, 0, -94.5), App.Rotation())
add_polygon(sketch7, [(-50, 30), (-50, 27), (-58, 27), (-58, 30)])  # lines 0-3
add_polygon(sketch7, [(-37, 23), (-37, 20), (-58, 20), (-58, 23)])  # lines 4-7
add_polygon(sketch7, [(-32, 16), (-32, 13), (-58, 13), (-58, 16)])  # lines 8-11
add_polygon(sketch7, [(-32, 9), (-32, 6), (-58, 6), (-58, 9)])  # lines 12-15
add_polygon(sketch7, [(-8.7, 14.5), (4, 14.5), (4, 6), (-8.7, 6), (-12, 8.75), (-12, 11.75)])  # lines 16-21
add_polygon(sketch7, [(-8.7, 29), (4, 29), (4, 20.5), (-8.7, 20.5), (-12, 23.25), (-12, 26.25)])  # lines 22-27
sketch7.addConstraint([
    Sketcher.Constraint("Vertical", 0),
    Sketcher.Constraint("Horizontal", 1),
    Sketcher.Constraint("Vertical", 2),
    Sketcher.Constraint("Horizontal", 3),
    Sketcher.Constraint("Vertical", 4),
    Sketcher.Constraint("Horizontal", 5),
    Sketcher.Constraint("Vertical", 6),
    Sketcher.Constraint("Horizontal", 7),
    Sketcher.Constraint("Vertical", 8),
    Sketcher.Constraint("Horizontal", 9),
    Sketcher.Constraint("Vertical", 10),
    Sketcher.Constraint("Horizontal", 11),
    Sketcher.Constraint("Vertical", 12),
    Sketcher.Constraint("Horizontal", 13),
    Sketcher.Constraint("Vertical", 14),
    Sketcher.Constraint("Horizontal", 15),
    Sketcher.Constraint("Horizontal", 16),
    Sketcher.Constraint("Vertical", 17),
    Sketcher.Constraint("Horizontal", 18),
    Sketcher.Constraint("Vertical", 20),
    Sketcher.Constraint("Horizontal", 22),
    Sketcher.Constraint("Vertical", 23),
    Sketcher.Constraint("Horizontal", 24),
    Sketcher.Constraint("Vertical", 26),
    Sketcher.Constraint("Parallel", 19, 25),
    Sketcher.Constraint("Parallel", 21, 27),
    Sketcher.Constraint("Horizontal", 13, 2, 17, 2),
    Sketcher.Constraint("Vertical", 2, 2, 5, 2),
    Sketcher.Constraint("Vertical", 6, 2, 9, 2),
    Sketcher.Constraint("Vertical", 11, 2, 12, 2),
    Sketcher.Constraint("Vertical", 10, 2, 13, 2),
    Sketcher.Constraint("Vertical", 18, 2, 21, 2),
    Sketcher.Constraint("Vertical", 17, 2, 22, 2),
    Sketcher.Constraint("Vertical", 21, 2, 24, 2),
    Sketcher.Constraint("Vertical", 20, 2, 25, 2),
    Sketcher.Constraint("Vertical", 24, 2, 27, 2),
    Sketcher.Constraint("Equal", 2, 4),
    Sketcher.Constraint("Equal", 6, 8),
    Sketcher.Constraint("Equal", 10, 12),
    Sketcher.Constraint("Equal", 14, 20),
    Sketcher.Constraint("Equal", 17, 23),
    Sketcher.Constraint("Equal", 19, 21),
    Sketcher.Constraint("DistanceX", 1, 2, 1, 1, 8.0),
    Sketcher.Constraint("DistanceX", 5, 2, 5, 1, 21.0),
    Sketcher.Constraint("DistanceX", 9, 2, 9, 1, 26.0),
    Sketcher.Constraint("DistanceY", 0, 2, 0, 1, 3.0),
    Sketcher.Constraint("DistanceX", 16, 1, 16, 2, 12.7),
    Sketcher.Constraint("DistanceY", 17, 2, 17, 1, 8.5),
    Sketcher.Constraint("DistanceX", 0, 2, -1, 1, 50.0),
    Sketcher.Constraint("DistanceY", -1, 1, 0, 2, 27.0),
    Sketcher.Constraint("DistanceY", -1, 1, 4, 2, 20.0),
    Sketcher.Constraint("DistanceY", -1, 1, 8, 2, 13.0),
    Sketcher.Constraint("DistanceY", -1, 1, 12, 2, 6.0),
    Sketcher.Constraint("DistanceX", -1, 1, 16, 2, 4.0),
    Sketcher.Constraint("DistanceX", 19, 2, -1, 1, 12.0),
    Sketcher.Constraint("DistanceY", -1, 1, 22, 2, 29.0),
])
pocket1 = body.newObject("PartDesign::Pocket", "Pocket")
pocket1.Profile = sketch7
pocket1.Length = 28
pocket1.Reversed = True

doc.recompute()
